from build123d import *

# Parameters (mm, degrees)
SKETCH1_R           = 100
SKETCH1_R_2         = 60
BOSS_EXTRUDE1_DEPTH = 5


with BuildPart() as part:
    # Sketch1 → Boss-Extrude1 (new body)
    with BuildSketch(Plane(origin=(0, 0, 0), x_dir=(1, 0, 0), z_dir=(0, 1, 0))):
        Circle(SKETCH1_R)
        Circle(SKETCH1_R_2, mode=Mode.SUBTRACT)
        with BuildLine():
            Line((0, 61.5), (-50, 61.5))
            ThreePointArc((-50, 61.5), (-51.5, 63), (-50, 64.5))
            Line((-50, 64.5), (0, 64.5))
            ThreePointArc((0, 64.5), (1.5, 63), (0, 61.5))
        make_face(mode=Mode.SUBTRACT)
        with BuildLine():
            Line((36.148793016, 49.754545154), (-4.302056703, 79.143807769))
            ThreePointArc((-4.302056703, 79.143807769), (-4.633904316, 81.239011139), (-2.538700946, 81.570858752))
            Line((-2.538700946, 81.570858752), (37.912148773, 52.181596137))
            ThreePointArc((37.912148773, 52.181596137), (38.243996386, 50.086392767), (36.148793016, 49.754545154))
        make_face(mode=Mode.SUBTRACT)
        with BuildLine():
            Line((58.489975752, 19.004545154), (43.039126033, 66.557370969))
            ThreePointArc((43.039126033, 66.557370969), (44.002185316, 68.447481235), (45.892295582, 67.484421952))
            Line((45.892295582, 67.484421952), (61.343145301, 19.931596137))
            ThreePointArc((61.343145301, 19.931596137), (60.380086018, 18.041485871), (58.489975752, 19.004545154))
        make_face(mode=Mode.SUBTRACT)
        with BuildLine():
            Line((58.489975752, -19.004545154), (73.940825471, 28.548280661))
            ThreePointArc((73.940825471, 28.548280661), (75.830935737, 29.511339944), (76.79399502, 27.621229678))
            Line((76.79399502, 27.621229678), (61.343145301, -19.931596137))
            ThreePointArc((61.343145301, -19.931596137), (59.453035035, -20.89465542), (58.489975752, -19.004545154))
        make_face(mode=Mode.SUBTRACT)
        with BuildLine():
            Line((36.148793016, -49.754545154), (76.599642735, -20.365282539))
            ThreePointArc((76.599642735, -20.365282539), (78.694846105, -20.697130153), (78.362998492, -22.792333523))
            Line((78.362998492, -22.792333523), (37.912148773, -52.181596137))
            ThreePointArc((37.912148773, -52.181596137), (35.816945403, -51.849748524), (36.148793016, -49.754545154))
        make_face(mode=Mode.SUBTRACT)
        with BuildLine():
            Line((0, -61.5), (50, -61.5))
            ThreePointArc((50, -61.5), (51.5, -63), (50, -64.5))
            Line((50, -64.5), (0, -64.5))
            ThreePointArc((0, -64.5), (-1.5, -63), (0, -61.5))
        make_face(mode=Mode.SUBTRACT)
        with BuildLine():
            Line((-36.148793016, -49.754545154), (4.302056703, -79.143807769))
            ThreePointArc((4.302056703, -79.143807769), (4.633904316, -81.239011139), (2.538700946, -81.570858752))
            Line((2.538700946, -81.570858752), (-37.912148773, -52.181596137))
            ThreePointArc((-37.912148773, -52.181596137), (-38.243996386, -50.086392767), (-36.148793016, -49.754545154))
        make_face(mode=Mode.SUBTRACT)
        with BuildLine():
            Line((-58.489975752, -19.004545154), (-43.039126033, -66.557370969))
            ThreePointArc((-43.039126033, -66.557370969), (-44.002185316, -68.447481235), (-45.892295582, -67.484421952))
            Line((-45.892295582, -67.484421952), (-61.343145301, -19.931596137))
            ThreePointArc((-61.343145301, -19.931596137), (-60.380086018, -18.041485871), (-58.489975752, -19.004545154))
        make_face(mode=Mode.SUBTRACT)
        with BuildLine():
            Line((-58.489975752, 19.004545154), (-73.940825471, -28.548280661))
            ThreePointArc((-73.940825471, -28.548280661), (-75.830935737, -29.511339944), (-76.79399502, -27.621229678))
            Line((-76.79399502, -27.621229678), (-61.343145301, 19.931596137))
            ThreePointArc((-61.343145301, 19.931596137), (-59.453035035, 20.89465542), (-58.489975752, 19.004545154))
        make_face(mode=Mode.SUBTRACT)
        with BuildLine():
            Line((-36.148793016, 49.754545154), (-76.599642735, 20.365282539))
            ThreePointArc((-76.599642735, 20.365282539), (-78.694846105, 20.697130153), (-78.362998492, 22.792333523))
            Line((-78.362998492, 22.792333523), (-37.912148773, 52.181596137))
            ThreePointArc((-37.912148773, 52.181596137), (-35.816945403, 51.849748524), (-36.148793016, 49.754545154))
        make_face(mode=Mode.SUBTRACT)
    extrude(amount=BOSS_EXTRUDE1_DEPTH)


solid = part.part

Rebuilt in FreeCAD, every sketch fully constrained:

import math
import FreeCAD as App
import Part
import Sketcher
Q = App.Units.Quantity

doc = App.newDocument("Part")
body = doc.addObject("PartDesign::Body", "Body")

# Sketch on XZ plane
sketch1 = doc.addObject("Sketcher::SketchObject", "Sketch")
body.addObject(sketch1)
sketch1.AttachmentSupport = (doc.XZ_Plane, [""])
sketch1.MapMode = "FlatFace"
sketch1.addGeometry([
    Part.Circle(App.Vector(0, 0, 0), App.Vector(0, 0, 1), 100),  # 0
    Part.ArcOfCircle(Part.Circle(App.Vector(-59.9, 19.5, 0), App.Vector(0, 0, 1), 1.5), math.radians(162), math.radians(342)),  # 1
    Part.LineSegment(App.Vector(-58.5, 19, 0), App.Vector(-43, 66.6, 0)),  # 2
    Part.ArcOfCircle(Part.Circle(App.Vector(-44.5, 67, 0), App.Vector(0, 0, 1), 1.5), math.radians(-18), math.radians(162)),  # 3
    Part.LineSegment(App.Vector(-45.9, 67.5, 0), App.Vector(-61.3, 19.9, 0)),  # 4
    Part.ArcOfCircle(Part.Circle(App.Vector(-37, 51, 0), App.Vector(0, 0, 1), 1.5), math.radians(126), math.radians(306)),  # 5
    Part.LineSegment(App.Vector(-36.1, 49.8, 0), App.Vector(4.3, 79.1, 0)),  # 6
    Part.ArcOfCircle(Part.Circle(App.Vector(3.4, 80.4, 0), App.Vector(0, 0, 1), 1.5), math.radians(-54), math.radians(126)),  # 7
    Part.LineSegment(App.Vector(2.5, 81.6, 0), App.Vector(-37.9, 52.2, 0)),  # 8
    Part.ArcOfCircle(Part.Circle(App.Vector(-59.9, -19.5, 0), App.Vector(0, 0, 1), 1.5), math.radians(-162), math.radians(18)),  # 9
    Part.LineSegment(App.Vector(-58.5, -19, 0), App.Vector(-73.9, 28.5, 0)),  # 10
    Part.ArcOfCircle(Part.Circle(App.Vector(-75.4, 28.1, 0), App.Vector(0, 0, 1), 1.5), math.radians(18), math.radians(198)),  # 11
    Part.LineSegment(App.Vector(-76.8, 27.6, 0), App.Vector(-61.3, -19.9, 0)),  # 12
    Part.ArcOfCircle(Part.Circle(App.Vector(0, 63, 0), App.Vector(0, 0, 1), 1.5), math.radians(90), math.radians(270)),  # 13
    Part.LineSegment(App.Vector(0, 61.5, 0), App.Vector(50, 61.5, 0)),  # 14
    Part.ArcOfCircle(Part.Circle(App.Vector(50, 63, 0), App.Vector(0, 0, 1), 1.5), math.radians(-90), math.radians(90)),  # 15
    Part.LineSegment(App.Vector(50, 64.5, 0), App.Vector(0, 64.5, 0)),  # 16
    Part.ArcOfCircle(Part.Circle(App.Vector(37, 51, 0), App.Vector(0, 0, 1), 1.5), math.radians(54), math.radians(234)),  # 17
    Part.LineSegment(App.Vector(36.1, 49.8, 0), App.Vector(76.6, 20.4, 0)),  # 18
    Part.ArcOfCircle(Part.Circle(App.Vector(77.5, 21.6, 0), App.Vector(0, 0, 1), 1.5), math.radians(-126), math.radians(54)),  # 19
    Part.LineSegment(App.Vector(78.4, 22.8, 0), App.Vector(37.9, 52.2, 0)),  # 20
    Part.ArcOfCircle(Part.Circle(App.Vector(-37, -51, 0), App.Vector(0, 0, 1), 1.5), math.radians(-126), math.radians(54)),  # 21
    Part.LineSegment(App.Vector(-36.1, -49.8, 0), App.Vector(-76.6, -20.4, 0)),  # 22
    Part.ArcOfCircle(Part.Circle(App.Vector(-77.5, -21.6, 0), App.Vector(0, 0, 1), 1.5), math.radians(54), math.radians(234)),  # 23
    Part.LineSegment(App.Vector(-78.4, -22.8, 0), App.Vector(-37.9, -52.2, 0)),  # 24
    Part.ArcOfCircle(Part.Circle(App.Vector(0, -63, 0), App.Vector(0, 0, 1), 1.5), math.radians(-90), math.radians(90)),  # 25
    Part.LineSegment(App.Vector(0, -61.5, 0), App.Vector(-50, -61.5, 0)),  # 26
    Part.ArcOfCircle(Part.Circle(App.Vector(-50, -63, 0), App.Vector(0, 0, 1), 1.5), math.radians(90), math.radians(270)),  # 27
    Part.LineSegment(App.Vector(-50, -64.5, 0), App.Vector(0, -64.5, 0)),  # 28
    Part.Circle(App.Vector(0, 0, 0), App.Vector(0, 0, 1), 60),  # 29
    Part.ArcOfCircle(Part.Circle(App.Vector(59.9, 19.5, 0), App.Vector(0, 0, 1), 1.5), math.radians(18), math.radians(198)),  # 30
    Part.LineSegment(App.Vector(58.5, 19, 0), App.Vector(73.9, -28.5, 0)),  # 31
    Part.ArcOfCircle(Part.Circle(App.Vector(75.4, -28.1, 0), App.Vector(0, 0, 1), 1.5), math.radians(-162), math.radians(18)),  # 32
    Part.LineSegment(App.Vector(76.8, -27.6, 0), App.Vector(61.3, 19.9, 0)),  # 33
    Part.ArcOfCircle(Part.Circle(App.Vector(37, -51, 0), App.Vector(0, 0, 1), 1.5), math.radians(-54), math.radians(126)),  # 34
    Part.LineSegment(App.Vector(36.1, -49.8, 0), App.Vector(-4.3, -79.1, 0)),  # 35
    Part.ArcOfCircle(Part.Circle(App.Vector(-3.4, -80.4, 0), App.Vector(0, 0, 1), 1.5), math.radians(126), math.radians(306)),  # 36
    Part.LineSegment(App.Vector(-2.5, -81.6, 0), App.Vector(37.9, -52.2, 0)),  # 37
    Part.ArcOfCircle(Part.Circle(App.Vector(59.9, -19.5, 0), App.Vector(0, 0, 1), 1.5), math.radians(-18), math.radians(162)),  # 38
    Part.LineSegment(App.Vector(58.5, -19, 0), App.Vector(43, -66.6, 0)),  # 39
    Part.ArcOfCircle(Part.Circle(App.Vector(44.5, -67, 0), App.Vector(0, 0, 1), 1.5), math.radians(162), math.radians(342)),  # 40
    Part.LineSegment(App.Vector(45.9, -67.5, 0), App.Vector(61.3, -19.9, 0)),  # 41
], False)
sketch1.addConstraint([
    Sketcher.Constraint("Tangent", 1, 2, 2, 1),
    Sketcher.Constraint("Tangent", 2, 2, 3, 1),
    Sketcher.Constraint("Tangent", 3, 2, 4, 1),
    Sketcher.Constraint("Tangent", 4, 2, 1, 1),
    Sketcher.Constraint("Tangent", 5, 2, 6, 1),
    Sketcher.Constraint("Tangent", 6, 2, 7, 1),
    Sketcher.Constraint("Tangent", 7, 2, 8, 1),
    Sketcher.Constraint("Tangent", 8, 2, 5, 1),
    Sketcher.Constraint("Tangent", 9, 2, 10, 1),
    Sketcher.Constraint("Tangent", 10, 2, 11, 1),
    Sketcher.Constraint("Tangent", 11, 2, 12, 1),
    Sketcher.Constraint("Tangent", 12, 2, 9, 1),
    Sketcher.Constraint("Tangent", 13, 2, 14, 1),
    Sketcher.Constraint("Tangent", 14, 2, 15, 1),
    Sketcher.Constraint("Tangent", 15, 2, 16, 1),
    Sketcher.Constraint("Tangent", 16, 2, 13, 1),
    Sketcher.Constraint("Tangent", 17, 2, 18, 1),
    Sketcher.Constraint("Tangent", 18, 2, 19, 1),
    Sketcher.Constraint("Tangent", 19, 2, 20, 1),
    Sketcher.Constraint("Tangent", 20, 2, 17, 1),
    Sketcher.Constraint("Tangent", 21, 2, 22, 1),
    Sketcher.Constraint("Tangent", 22, 2, 23, 1),
    Sketcher.Constraint("Tangent", 23, 2, 24, 1),
    Sketcher.Constraint("Tangent", 24, 2, 21, 1),
    Sketcher.Constraint("Tangent", 25, 2, 26, 1),
    Sketcher.Constraint("Tangent", 26, 2, 27, 1),
    Sketcher.Constraint("Tangent", 27, 2, 28, 1),
    Sketcher.Constraint("Tangent", 28, 2, 25, 1),
    Sketcher.Constraint("Tangent", 30, 2, 31, 1),
    Sketcher.Constraint("Tangent", 31, 2, 32, 1),
    Sketcher.Constraint("Tangent", 32, 2, 33, 1),
    Sketcher.Constraint("Tangent", 33, 2, 30, 1),
    Sketcher.Constraint("Tangent", 34, 2, 35, 1),
    Sketcher.Constraint("Tangent", 35, 2, 36, 1),
    Sketcher.Constraint("Tangent", 36, 2, 37, 1),
    Sketcher.Constraint("Tangent", 37, 2, 34, 1),
    Sketcher.Constraint("Tangent", 38, 2, 39, 1),
    Sketcher.Constraint("Tangent", 39, 2, 40, 1),
    Sketcher.Constraint("Tangent", 40, 2, 41, 1),
    Sketcher.Constraint("Tangent", 41, 2, 38, 1),
    Sketcher.Constraint("Horizontal", 14),
    Sketcher.Constraint("Horizontal", 16),
    Sketcher.Constraint("Horizontal", 26),
    Sketcher.Constraint("Horizontal", 28),
    Sketcher.Constraint("Coincident", 0, 3, -1, 1),
    Sketcher.Constraint("Coincident", 29, 3, -1, 1),
    Sketcher.Constraint("Equal", 1, 3),
    Sketcher.Constraint("Equal", 3, 5),
    Sketcher.Constraint("Equal", 5, 7),
    Sketcher.Constraint("Equal", 7, 9),
    Sketcher.Constraint("Equal", 9, 11),
    Sketcher.Constraint("Equal", 11, 13),
    Sketcher.Constraint("Equal", 15, 17),
    Sketcher.Constraint("Equal", 17, 19),
    Sketcher.Constraint("Equal", 19, 21),
    Sketcher.Constraint("Equal", 21, 23),
    Sketcher.Constraint("Equal", 23, 25),
    Sketcher.Constraint("Equal", 27, 30),
    Sketcher.Constraint("Equal", 30, 32),
    Sketcher.Constraint("Equal", 32, 34),
    Sketcher.Constraint("Equal", 34, 36),
    Sketcher.Constraint("Equal", 36, 38),
    Sketcher.Constraint("Equal", 38, 40),
    Sketcher.Constraint("Symmetric", 17, 3, 21, 3, -1, 1),
    Sketcher.Constraint("Symmetric", 19, 3, 23, 3, -1, 1),
    Sketcher.Constraint("Symmetric", 13, 3, 25, 3, -1, 1),
    Sketcher.Constraint("Symmetric", 9, 3, 30, 3, -1, 1),
    Sketcher.Constraint("Symmetric", 11, 3, 32, 3, -1, 1),
    Sketcher.Constraint("Symmetric", 5, 3, 34, 3, -1, 1),
    Sketcher.Constraint("Symmetric", 7, 3, 36, 3, -1, 1),
    Sketcher.Constraint("Symmetric", 1, 3, 38, 3, -1, 1),
    Sketcher.Constraint("Symmetric", 3, 3, 40, 3, -1, 1),
    Sketcher.Constraint("Symmetric", 5, 3, 17, 3, -2),
    Sketcher.Constraint("Symmetric", 1, 3, 30, 3, -2),
    Sketcher.Constraint("PointOnObject", 13, 3, -2),
    Sketcher.Constraint("Horizontal", 5, 2, 17, 2),
    Sketcher.Constraint("Horizontal", 1, 2, 30, 2),
    Sketcher.Constraint("Equal", 16, 26),
    Sketcher.Constraint("Equal", 4, 6),
    Sketcher.Constraint("Equal", 8, 10),
    Sketcher.Constraint("Equal", 12, 18),
    Sketcher.Constraint("Diameter", 0, 200.0),
    Sketcher.Constraint("Diameter", 29, 120.0),
    Sketcher.Constraint("Radius", 1, 1.5),
    Sketcher.Constraint("DistanceX", 14, 1, 14, 2, 50.0),
    Sketcher.Constraint("Angle", 2, Q("72 deg")),
    Sketcher.Constraint("Angle", 6, Q("36 deg")),
    Sketcher.Constraint("Distance", 2, 50.0),
    Sketcher.Constraint("DistanceY", -1, 1, 13, 3, 63.0),
    Sketcher.Constraint("DistanceX", -1, 1, 19, 2, 78.362998),
    Sketcher.Constraint("DistanceX", 1, 3, -1, 1, 59.916561),
    Sketcher.Constraint("DistanceY", -1, 1, 1, 3, 19.468071),
    Sketcher.Constraint("DistanceY", -1, 1, 5, 3, 50.968071),
])
pad1 = doc.addObject("PartDesign::Pad", "Pad")
body.addObject(pad1)
pad1.Profile = sketch1
pad1.Length = 5
pad1.Reversed = True

doc.recompute()
